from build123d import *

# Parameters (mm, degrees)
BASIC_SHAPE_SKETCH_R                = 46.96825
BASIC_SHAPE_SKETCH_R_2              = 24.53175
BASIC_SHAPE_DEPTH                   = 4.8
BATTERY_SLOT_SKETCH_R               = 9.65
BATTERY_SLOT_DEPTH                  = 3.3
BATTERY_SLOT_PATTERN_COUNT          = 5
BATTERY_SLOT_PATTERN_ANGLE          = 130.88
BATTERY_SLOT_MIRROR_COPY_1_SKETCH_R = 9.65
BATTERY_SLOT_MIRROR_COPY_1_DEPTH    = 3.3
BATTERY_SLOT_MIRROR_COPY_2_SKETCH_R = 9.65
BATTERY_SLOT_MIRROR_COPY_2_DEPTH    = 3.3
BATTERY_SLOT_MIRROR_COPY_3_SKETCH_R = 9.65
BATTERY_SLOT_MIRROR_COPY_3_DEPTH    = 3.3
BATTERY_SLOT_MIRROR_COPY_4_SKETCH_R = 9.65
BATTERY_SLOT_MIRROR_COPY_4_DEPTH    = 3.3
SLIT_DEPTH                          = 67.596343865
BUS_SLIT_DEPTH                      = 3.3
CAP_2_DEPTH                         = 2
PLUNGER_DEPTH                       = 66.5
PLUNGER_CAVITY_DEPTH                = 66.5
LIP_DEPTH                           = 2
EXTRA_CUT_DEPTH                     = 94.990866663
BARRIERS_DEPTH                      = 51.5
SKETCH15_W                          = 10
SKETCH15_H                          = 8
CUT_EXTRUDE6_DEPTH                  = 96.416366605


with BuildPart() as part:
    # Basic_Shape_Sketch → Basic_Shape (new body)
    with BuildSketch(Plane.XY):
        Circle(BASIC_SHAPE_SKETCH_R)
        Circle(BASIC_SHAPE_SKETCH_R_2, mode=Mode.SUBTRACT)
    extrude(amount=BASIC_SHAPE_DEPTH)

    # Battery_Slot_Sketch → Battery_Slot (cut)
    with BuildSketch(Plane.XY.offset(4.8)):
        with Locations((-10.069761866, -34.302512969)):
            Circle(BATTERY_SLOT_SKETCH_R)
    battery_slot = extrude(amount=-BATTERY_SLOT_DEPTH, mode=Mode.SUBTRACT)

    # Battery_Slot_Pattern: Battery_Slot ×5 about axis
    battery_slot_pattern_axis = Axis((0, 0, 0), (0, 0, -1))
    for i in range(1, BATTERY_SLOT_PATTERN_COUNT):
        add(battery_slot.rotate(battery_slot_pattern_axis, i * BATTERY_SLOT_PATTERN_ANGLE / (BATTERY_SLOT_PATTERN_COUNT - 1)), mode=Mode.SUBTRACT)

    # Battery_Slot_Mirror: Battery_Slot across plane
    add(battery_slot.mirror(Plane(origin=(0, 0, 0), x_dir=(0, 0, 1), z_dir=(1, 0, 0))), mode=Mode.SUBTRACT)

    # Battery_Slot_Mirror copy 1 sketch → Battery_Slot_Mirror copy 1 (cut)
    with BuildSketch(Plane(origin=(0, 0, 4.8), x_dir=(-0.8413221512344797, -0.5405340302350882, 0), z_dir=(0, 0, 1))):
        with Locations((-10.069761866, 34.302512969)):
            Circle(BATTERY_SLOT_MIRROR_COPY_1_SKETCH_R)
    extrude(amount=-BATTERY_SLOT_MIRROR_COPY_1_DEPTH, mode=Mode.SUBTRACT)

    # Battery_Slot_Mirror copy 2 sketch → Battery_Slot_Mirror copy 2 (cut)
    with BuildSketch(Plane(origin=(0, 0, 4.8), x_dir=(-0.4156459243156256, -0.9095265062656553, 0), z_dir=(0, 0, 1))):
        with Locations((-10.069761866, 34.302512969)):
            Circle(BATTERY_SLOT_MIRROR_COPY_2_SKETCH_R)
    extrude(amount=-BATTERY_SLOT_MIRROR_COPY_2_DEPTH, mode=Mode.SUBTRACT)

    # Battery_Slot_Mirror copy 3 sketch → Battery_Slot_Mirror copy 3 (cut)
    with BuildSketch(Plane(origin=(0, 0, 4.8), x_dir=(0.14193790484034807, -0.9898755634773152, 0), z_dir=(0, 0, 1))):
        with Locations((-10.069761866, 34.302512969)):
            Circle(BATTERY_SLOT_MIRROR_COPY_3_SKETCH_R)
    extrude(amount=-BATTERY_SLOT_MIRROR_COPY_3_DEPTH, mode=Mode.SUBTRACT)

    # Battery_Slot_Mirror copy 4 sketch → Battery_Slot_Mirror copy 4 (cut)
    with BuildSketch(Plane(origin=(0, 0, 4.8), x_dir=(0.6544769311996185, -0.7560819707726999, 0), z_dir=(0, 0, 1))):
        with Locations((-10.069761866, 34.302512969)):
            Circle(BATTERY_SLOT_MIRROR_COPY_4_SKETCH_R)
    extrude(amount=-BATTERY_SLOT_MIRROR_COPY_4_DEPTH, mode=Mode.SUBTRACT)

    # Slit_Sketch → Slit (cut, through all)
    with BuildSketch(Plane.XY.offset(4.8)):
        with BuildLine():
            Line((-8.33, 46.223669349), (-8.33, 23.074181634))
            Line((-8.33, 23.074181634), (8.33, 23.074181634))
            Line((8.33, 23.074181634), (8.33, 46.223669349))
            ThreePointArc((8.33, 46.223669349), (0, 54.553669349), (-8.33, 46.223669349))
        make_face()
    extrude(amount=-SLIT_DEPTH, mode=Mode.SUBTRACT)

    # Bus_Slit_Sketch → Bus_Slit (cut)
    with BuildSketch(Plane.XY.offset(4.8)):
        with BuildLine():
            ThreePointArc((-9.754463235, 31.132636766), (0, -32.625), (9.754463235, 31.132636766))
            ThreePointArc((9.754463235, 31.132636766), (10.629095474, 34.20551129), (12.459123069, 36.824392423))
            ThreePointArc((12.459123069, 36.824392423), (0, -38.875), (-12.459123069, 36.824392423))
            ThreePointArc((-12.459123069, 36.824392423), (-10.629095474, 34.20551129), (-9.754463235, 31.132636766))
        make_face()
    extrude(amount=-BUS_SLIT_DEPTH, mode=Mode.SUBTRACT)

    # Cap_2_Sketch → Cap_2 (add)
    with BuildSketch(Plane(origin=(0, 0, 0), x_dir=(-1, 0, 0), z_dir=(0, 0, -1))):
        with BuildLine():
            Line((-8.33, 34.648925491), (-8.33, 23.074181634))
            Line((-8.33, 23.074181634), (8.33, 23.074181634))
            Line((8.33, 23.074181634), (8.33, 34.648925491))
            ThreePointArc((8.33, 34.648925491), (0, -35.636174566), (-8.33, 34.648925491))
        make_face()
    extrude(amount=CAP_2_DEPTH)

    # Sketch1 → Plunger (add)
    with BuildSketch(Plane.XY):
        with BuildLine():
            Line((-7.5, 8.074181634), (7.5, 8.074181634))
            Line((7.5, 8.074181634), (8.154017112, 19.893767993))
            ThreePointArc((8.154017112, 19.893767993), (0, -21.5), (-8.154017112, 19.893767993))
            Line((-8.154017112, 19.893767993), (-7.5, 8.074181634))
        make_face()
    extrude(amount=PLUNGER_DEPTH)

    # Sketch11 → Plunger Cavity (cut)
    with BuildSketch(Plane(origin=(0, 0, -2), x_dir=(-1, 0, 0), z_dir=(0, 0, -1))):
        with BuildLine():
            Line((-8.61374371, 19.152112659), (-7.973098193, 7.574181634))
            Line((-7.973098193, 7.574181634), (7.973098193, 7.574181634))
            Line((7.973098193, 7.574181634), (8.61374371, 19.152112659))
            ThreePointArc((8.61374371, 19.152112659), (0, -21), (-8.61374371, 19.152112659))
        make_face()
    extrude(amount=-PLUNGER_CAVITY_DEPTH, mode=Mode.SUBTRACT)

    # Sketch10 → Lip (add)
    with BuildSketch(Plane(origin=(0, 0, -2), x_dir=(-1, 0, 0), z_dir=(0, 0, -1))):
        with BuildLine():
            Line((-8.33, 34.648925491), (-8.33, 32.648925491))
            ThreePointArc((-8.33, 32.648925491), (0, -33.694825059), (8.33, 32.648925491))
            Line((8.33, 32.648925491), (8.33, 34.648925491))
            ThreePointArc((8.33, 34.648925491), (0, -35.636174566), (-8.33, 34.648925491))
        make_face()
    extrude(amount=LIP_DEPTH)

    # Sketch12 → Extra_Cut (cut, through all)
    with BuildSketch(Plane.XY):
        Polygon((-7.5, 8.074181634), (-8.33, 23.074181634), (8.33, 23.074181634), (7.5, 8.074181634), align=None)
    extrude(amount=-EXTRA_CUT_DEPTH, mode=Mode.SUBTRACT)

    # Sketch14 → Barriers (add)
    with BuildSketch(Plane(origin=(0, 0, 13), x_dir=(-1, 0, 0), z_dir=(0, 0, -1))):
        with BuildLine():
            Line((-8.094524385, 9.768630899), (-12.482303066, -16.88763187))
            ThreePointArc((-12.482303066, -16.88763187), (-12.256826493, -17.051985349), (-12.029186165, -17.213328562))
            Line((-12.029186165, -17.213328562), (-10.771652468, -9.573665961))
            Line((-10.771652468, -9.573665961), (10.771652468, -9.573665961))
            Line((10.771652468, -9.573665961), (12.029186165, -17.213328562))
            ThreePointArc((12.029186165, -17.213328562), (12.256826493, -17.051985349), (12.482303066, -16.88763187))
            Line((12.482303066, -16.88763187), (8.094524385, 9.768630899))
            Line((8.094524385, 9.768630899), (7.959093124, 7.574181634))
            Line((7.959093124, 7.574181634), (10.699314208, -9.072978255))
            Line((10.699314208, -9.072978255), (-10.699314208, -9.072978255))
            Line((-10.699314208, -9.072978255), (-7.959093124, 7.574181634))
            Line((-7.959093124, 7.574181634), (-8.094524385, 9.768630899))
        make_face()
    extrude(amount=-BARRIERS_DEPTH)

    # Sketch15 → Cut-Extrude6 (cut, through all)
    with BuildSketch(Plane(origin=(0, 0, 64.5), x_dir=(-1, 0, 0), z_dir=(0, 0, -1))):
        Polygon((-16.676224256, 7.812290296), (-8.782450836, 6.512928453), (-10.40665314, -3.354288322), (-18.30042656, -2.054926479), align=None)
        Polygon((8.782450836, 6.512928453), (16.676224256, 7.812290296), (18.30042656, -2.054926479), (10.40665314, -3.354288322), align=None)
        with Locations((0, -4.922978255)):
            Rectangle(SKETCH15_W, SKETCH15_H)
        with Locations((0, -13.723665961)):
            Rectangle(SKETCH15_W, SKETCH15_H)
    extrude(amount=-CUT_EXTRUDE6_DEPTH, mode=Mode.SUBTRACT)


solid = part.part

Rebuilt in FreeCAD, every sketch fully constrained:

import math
import FreeCAD as App
import Part
import Sketcher
from FreeCAD import Vector
Q = App.Units.Quantity

doc = App.newDocument("Part")
body = doc.addObject("PartDesign::Body", "Body")

# Sketch on XY plane
sketch1 = body.newObject("Sketcher::SketchObject", "Sketch")
sketch1.AttachmentSupport = (doc.getObject("XY_Plane"), [""])
sketch1.MapMode = "FlatFace"
sketch1.addGeometry([
    Part.Circle(Vector(0, 0, 0), Vector(0, 0, 1), 47),
    Part.Circle(Vector(0, 0, 0), Vector(0, 0, 1), 25),
], False)
sketch1.addConstraint([
    Sketcher.Constraint("Coincident", 0, 3, -1, 1),
    Sketcher.Constraint("Coincident", 1, 3, -1, 1),
    Sketcher.Constraint("Diameter", 0, Q("93.9365 mm")),
    Sketcher.Constraint("Diameter", 1, Q("49.0635 mm")),
])
pad1 = body.newObject("PartDesign::Pad", "Pad")
pad1.Profile = sketch1
pad1.Length = 4.8

# Sketch on XY plane
sketch2 = body.newObject("Sketcher::SketchObject", "Sketch001")
sketch2.AttachmentSupport = (doc.getObject("XY_Plane"), [""])
sketch2.MapMode = "FlatFace"
sketch2.AttachmentOffset = App.Placement(Vector(0, 0, 4.8), App.Rotation())
sketch2.addGeometry(Part.Circle(Vector(-10, -34, 0), Vector(0, 0, 1), 10), False)
sketch2.addConstraint([
    Sketcher.Constraint("Diameter", 0, Q("19.3 mm")),
    Sketcher.Constraint("DistanceX", 0, 3, -1, 1, Q("10.069762 mm")),
    Sketcher.Constraint("DistanceY", 0, 3, -1, 1, Q("34.302513 mm")),
])
pocket1 = body.newObject("PartDesign::Pocket", "Pocket")
pocket1.Profile = sketch2
pocket1.Length = 3.3
doc.recompute()

polarpattern = body.newObject("PartDesign::PolarPattern", "PolarPattern")
polarpattern.Originals = [pocket1]
polarpattern.Axis = (doc.getObject("Z_Axis"), [""])
polarpattern.Angle = 130.88
polarpattern.Occurrences = 5
polarpattern.Reversed = True
body.Tip = polarpattern
doc.recompute()

mirrored = body.newObject("PartDesign::Mirrored", "Mirrored")
mirrored.Originals = [pocket1]
mirrored.MirrorPlane = (doc.getObject("YZ_Plane"), [""])
body.Tip = mirrored

# Sketch on XY plane
sketch3 = body.newObject("Sketcher::SketchObject", "Sketch002")
sketch3.AttachmentSupport = (doc.getObject("XY_Plane"), [""])
sketch3.MapMode = "FlatFace"
sketch3.AttachmentOffset = App.Placement(Vector(0, 0, 4.8), App.Rotation())
sketch3.addGeometry(Part.Circle(Vector(27, -23, 0), Vector(0, 0, 1), 10), False)
sketch3.addConstraint([
    Sketcher.Constraint("Diameter", 0, Q("19.3 mm")),
    Sketcher.Constraint("DistanceX", -1, 1, 0, 3, Q("27.013589 mm")),
    Sketcher.Constraint("DistanceY", 0, 3, -1, 1, Q("23.416415 mm")),
])
pocket2 = body.newObject("PartDesign::Pocket", "Pocket001")
pocket2.Profile = sketch3
pocket2.Length = 3.3

# Sketch on XY plane
sketch4 = body.newObject("Sketcher::SketchObject", "Sketch003")
sketch4.AttachmentSupport = (doc.getObject("XY_Plane"), [""])
sketch4.MapMode = "FlatFace"
sketch4.AttachmentOffset = App.Placement(Vector(0, 0, 4.8), App.Rotation())
sketch4.addGeometry(Part.Circle(Vector(35, -5, 0), Vector(0, 0, 1), 10), False)
sketch4.addConstraint([
    Sketcher.Constraint("Diameter", 0, Q("19.3 mm")),
    Sketcher.Constraint("DistanceX", -1, 1, 0, 3, Q("35.3845 mm")),
    Sketcher.Constraint("DistanceY", 0, 3, -1, 1, Q("5.098984 mm")),
])
pocket3 = body.newObject("PartDesign::Pocket", "Pocket002")
pocket3.Profile = sketch4
pocket3.Length = 3.3

# Sketch on XY plane
sketch5 = body.newObject("Sketcher::SketchObject", "Sketch004")
sketch5.AttachmentSupport = (doc.getObject("XY_Plane"), [""])
sketch5.MapMode = "FlatFace"
sketch5.AttachmentOffset = App.Placement(Vector(0, 0, 4.8), App.Rotation())
sketch5.addGeometry(Part.Circle(Vector(33, 15, 0), Vector(0, 0, 1), 10), False)
sketch5.addConstraint([
    Sketcher.Constraint("Diameter", 0, Q("19.3 mm")),
    Sketcher.Constraint("DistanceX", -1, 1, 0, 3, Q("32.525938 mm")),
    Sketcher.Constraint("DistanceY", -1, 1, 0, 3, Q("14.836638 mm")),
])
pocket4 = body.newObject("PartDesign::Pocket", "Pocket003")
pocket4.Profile = sketch5
pocket4.Length = 3.3

# Sketch on XY plane
sketch6 = body.newObject("Sketcher::SketchObject", "Sketch005")
sketch6.AttachmentSupport = (doc.getObject("XY_Plane"), [""])
sketch6.MapMode = "FlatFace"
sketch6.AttachmentOffset = App.Placement(Vector(0, 0, 4.8), App.Rotation())
sketch6.addGeometry(Part.Circle(Vector(19, 30, 0), Vector(0, 0, 1), 10), False)
sketch6.addConstraint([
    Sketcher.Constraint("Diameter", 0, Q("19.3 mm")),
    Sketcher.Constraint("DistanceY", -1, 1, 0, 3, Q("30.063769 mm")),
    Sketcher.Constraint("DistanceX", -1, 1, 0, 3, Q("19.345085 mm")),
])
pocket5 = body.newObject("PartDesign::Pocket", "Pocket004")
pocket5.Profile = sketch6
pocket5.Length = 3.3

# Sketch on XY plane
sketch7 = body.newObject("Sketcher::SketchObject", "Sketch006")
sketch7.AttachmentSupport = (doc.getObject("XY_Plane"), [""])
sketch7.MapMode = "FlatFace"
sketch7.AttachmentOffset = App.Placement(Vector(0, 0, 4.8), App.Rotation())
sketch7.addGeometry([
    Part.LineSegment(Vector(-8, 46, 0), Vector(-8, 23, 0)),
    Part.LineSegment(Vector(-8, 23, 0), Vector(8, 23, 0)),
    Part.LineSegment(Vector(8, 23, 0), Vector(8, 46, 0)),
    Part.ArcOfCircle(Part.Circle(Vector(0, 46, 0), Vector(0, 0, 1), 8), math.radians(0), math.radians(180)),
], False)
sketch7.addConstraint([
    Sketcher.Constraint("Coincident", 0, 2, 1, 1),
    Sketcher.Constraint("Coincident", 1, 2, 2, 1),
    Sketcher.Constraint("Tangent", 2, 2, 3, 1),
    Sketcher.Constraint("Tangent", 3, 2, 0, 1),
    Sketcher.Constraint("Vertical", 0),
    Sketcher.Constraint("Horizontal", 1),
    Sketcher.Constraint("Vertical", 2),
    Sketcher.Constraint("PointOnObject", 3, 3, -2),
    Sketcher.Constraint("Radius", 3, Q("8.33 mm")),
    Sketcher.Constraint("DistanceY", 0, 2, 0, 1, Q("23.149488 mm")),
    Sketcher.Constraint("DistanceY", -1, 1, 3, 3, Q("46.223669 mm")),
])
pocket6 = body.newObject("PartDesign::Pocket", "Pocket005")
pocket6.Profile = sketch7
pocket6.Type = "ThroughAll"

# Sketch on XY plane
sketch8 = body.newObject("Sketcher::SketchObject", "Sketch007")
sketch8.AttachmentSupport = (doc.getObject("XY_Plane"), [""])
sketch8.MapMode = "FlatFace"
sketch8.AttachmentOffset = App.Placement(Vector(0, 0, 4.8), App.Rotation())
sketch8.addGeometry([
    Part.ArcOfCircle(Part.Circle(Vector(0, 0, 0), Vector(0, 0, 1), 33), math.radians(107), math.radians(433)),
    Part.ArcOfCircle(Part.Circle(Vector(-19, 30, 0), Vector(0, 0, 1), 10), math.radians(6), math.radians(44)),
    Part.ArcOfCircle(Part.Circle(Vector(0, 0, 0), Vector(0, 0, 1), 39), math.radians(109), math.radians(431)),
    Part.ArcOfCircle(Part.Circle(Vector(19, 30, 0), Vector(0, 0, 1), 10), math.radians(136), math.radians(174)),
], False)
sketch8.addConstraint([
    Sketcher.Constraint("Coincident", 0, 1, 1, 1),
    Sketcher.Constraint("Coincident", 1, 2, 2, 1),
    Sketcher.Constraint("Coincident", 2, 2, 3, 1),
    Sketcher.Constraint("Coincident", 3, 2, 0, 2),
    Sketcher.Constraint("Coincident", 0, 3, -1, 1),
    Sketcher.Constraint("Coincident", 2, 3, -1, 1),
    Sketcher.Constraint("Equal", 1, 3),
    Sketcher.Constraint("Symmetric", 1, 3, 3, 3, -2),
    Sketcher.Constraint("Radius", 1, Q("9.65 mm")),
    Sketcher.Constraint("Radius", 0, Q("32.625 mm")),
    Sketcher.Constraint("Radius", 2, Q("38.875 mm")),
    Sketcher.Constraint("DistanceY", -1, 1, 1, 3, Q("30.063769 mm")),
    Sketcher.Constraint("DistanceX", 1, 3, 3, 3, Q("38.69017 mm")),
])
pocket7 = body.newObject("PartDesign::Pocket", "Pocket006")
pocket7.Profile = sketch8
pocket7.Length = 3.3

# Sketch on XY plane
sketch9 = body.newObject("Sketcher::SketchObject", "Sketch008")
sketch9.AttachmentSupport = (doc.getObject("XY_Plane"), [""])
sketch9.MapMode = "FlatFace"
sketch9.addGeometry([
    Part.LineSegment(Vector(8, 23, 0), Vector(8, 35, 0)),
    Part.ArcOfCircle(Part.Circle(Vector(0, 0, 0), Vector(0, 0, 1), 36), math.radians(104), math.radians(436)),
    Part.LineSegment(Vector(-8, 35, 0), Vector(-8, 23, 0)),
    Part.LineSegment(Vector(-8, 23, 0), Vector(8, 23, 0)),
], False)
sketch9.addConstraint([
    Sketcher.Constraint("Coincident", 0, 2, 1, 2),
    Sketcher.Constraint("Coincident", 1, 1, 2, 1),
    Sketcher.Constraint("Coincident", 2, 2, 3, 1),
    Sketcher.Constraint("Coincident", 3, 2, 0, 1),
    Sketcher.Constraint("Vertical", 0),
    Sketcher.Constraint("Vertical", 2),
    Sketcher.Constraint("Horizontal", 3),
    Sketcher.Constraint("Coincident", 1, 3, -1, 1),
    Sketcher.Constraint("Horizontal", 0, 2, 1, 1),
    Sketcher.Constraint("DistanceX", 3, 1, 3, 2, Q("16.66 mm")),
    Sketcher.Constraint("Radius", 1, Q("35.636175 mm")),
    Sketcher.Constraint("DistanceY", 0, 1, 0, 2, Q("11.574744 mm")),
])
pad2 = body.newObject("PartDesign::Pad", "Pad001")
pad2.Profile = sketch9
pad2.Length = 2
pad2.Reversed = True

# Sketch on XY plane
sketch10 = body.newObject("Sketcher::SketchObject", "Sketch009")
sketch10.AttachmentSupport = (doc.getObject("XY_Plane"), [""])
sketch10.MapMode = "FlatFace"
sketch10.addGeometry([
    Part.LineSegment(Vector(8, 8, 0), Vector(-8, 8, 0)),
    Part.LineSegment(Vector(-8, 8, 0), Vector(-8, 20, 0)),
    Part.ArcOfCircle(Part.Circle(Vector(0, 0, 0), Vector(0, 0, 1), 22), math.radians(112), math.radians(428)),
    Part.LineSegment(Vector(8, 20, 0), Vector(8, 8, 0)),
], False)
sketch10.addConstraint([
    Sketcher.Constraint("Coincident", 0, 2, 1, 1),
    Sketcher.Constraint("Coincident", 1, 2, 2, 1),
    Sketcher.Constraint("Coincident", 2, 2, 3, 1),
    Sketcher.Constraint("Coincident", 3, 2, 0, 1),
    Sketcher.Constraint("Horizontal", 0),
    Sketcher.Constraint("Coincident", 2, 3, -1, 1),
    Sketcher.Constraint("Horizontal", 1, 2, 2, 2),
    Sketcher.Constraint("Equal", 1, 3),
    Sketcher.Constraint("Radius", 2, Q("21.5 mm")),
    Sketcher.Constraint("DistanceX", 0, 2, 0, 1, Q("15 mm")),
    Sketcher.Constraint("DistanceY", -1, 1, 0, 2, Q("8.074182 mm")),
    Sketcher.Constraint("Distance", 1, Q("11.837667 mm")),
])
pad3 = body.newObject("PartDesign::Pad", "Pad002")
pad3.Profile = sketch10
pad3.Length = 66.5

# Sketch on XY plane
sketch11 = body.newObject("Sketcher::SketchObject", "Sketch010")
sketch11.AttachmentSupport = (doc.getObject("XY_Plane"), [""])
sketch11.MapMode = "FlatFace"
sketch11.AttachmentOffset = App.Placement(Vector(0, 0, -2), App.Rotation())
sketch11.addGeometry([
    Part.LineSegment(Vector(8, 8, 0), Vector(9, 19, 0)),
    Part.ArcOfCircle(Part.Circle(Vector(0, 0, 0), Vector(0, 0, 1), 21), math.radians(114), math.radians(426)),
    Part.LineSegment(Vector(-9, 19, 0), Vector(-8, 8, 0)),
    Part.LineSegment(Vector(-8, 8, 0), Vector(8, 8, 0)),
], False)
sketch11.addConstraint([
    Sketcher.Constraint("Coincident", 0, 2, 1, 2),
    Sketcher.Constraint("Coincident", 1, 1, 2, 1),
    Sketcher.Constraint("Coincident", 2, 2, 3, 1),
    Sketcher.Constraint("Coincident", 3, 2, 0, 1),
    Sketcher.Constraint("Horizontal", 3),
    Sketcher.Constraint("Coincident", 1, 3, -1, 1),
    Sketcher.Constraint("Horizontal", 0, 2, 1, 1),
    Sketcher.Constraint("Equal", 0, 2),
    Sketcher.Constraint("Radius", 1, Q("21 mm")),
    Sketcher.Constraint("DistanceX", 2, 2, -1, 1, Q("7.973098 mm")),
    Sketcher.Constraint("DistanceY", -1, 1, 2, 2, Q("7.574182 mm")),
    Sketcher.Constraint("DistanceY", 2, 2, 1, 1, Q("11.577931 mm")),
])
pocket8 = body.newObject("PartDesign::Pocket", "Pocket007")
pocket8.Profile = sketch11
pocket8.Length = 66.5
pocket8.Reversed = True

# Sketch on XY plane
sketch12 = body.newObject("Sketcher::SketchObject", "Sketch011")
sketch12.AttachmentSupport = (doc.getObject("XY_Plane"), [""])
sketch12.MapMode = "FlatFace"
sketch12.AttachmentOffset = App.Placement(Vector(0, 0, -2), App.Rotation())
sketch12.addGeometry([
    Part.LineSegment(Vector(8.3, 32.6, 0), Vector(8.3, 34.6, 0)),
    Part.ArcOfCircle(Part.Circle(Vector(0, 0, 0), Vector(0, 0, 1), 35.6), math.radians(104), math.radians(436)),
    Part.LineSegment(Vector(-8.3, 34.6, 0), Vector(-8.3, 32.6, 0)),
    Part.ArcOfCircle(Part.Circle(Vector(0, 0, 0), Vector(0, 0, 1), 33.7), math.radians(104), math.radians(436)),
], False)
sketch12.addConstraint([
    Sketcher.Constraint("Coincident", 0, 2, 1, 2),
    Sketcher.Constraint("Coincident", 1, 1, 2, 1),
    Sketcher.Constraint("Coincident", 2, 2, 3, 1),
    Sketcher.Constraint("Coincident", 3, 2, 0, 1),
    Sketcher.Constraint("Vertical", 0),
    Sketcher.Constraint("Vertical", 2),
    Sketcher.Constraint("Coincident", 1, 3, -1, 1),
    Sketcher.Constraint("Coincident", 3, 3, -1, 1),
    Sketcher.Constraint("Horizontal", 0, 2, 1, 1),
    Sketcher.Constraint("DistanceY", 0, 1, 0, 2, Q("2 mm")),
    Sketcher.Constraint("DistanceX", -1, 1, 0, 2, Q("8.33 mm")),
    Sketcher.Constraint("Radius", 1, Q("35.636175 mm")),
])
pad4 = body.newObject("PartDesign::Pad", "Pad003")
pad4.Profile = sketch12
pad4.Length = 2
pad4.Reversed = True

# Sketch on XY plane
sketch13 = body.newObject("Sketcher::SketchObject", "Sketch012")
sketch13.AttachmentSupport = (doc.getObject("XY_Plane"), [""])
sketch13.MapMode = "FlatFace"
sketch13.addGeometry([
    Part.LineSegment(Vector(-8.33, 23.074182, 0), Vector(-7.5, 8.074182, 0)),
    Part.LineSegment(Vector(-7.5, 8.074182, 0), Vector(7.5, 8.074182, 0)),
    Part.LineSegment(Vector(7.5, 8.074182, 0), Vector(8.33, 23.074182, 0)),
    Part.LineSegment(Vector(8.33, 23.074182, 0), Vector(-8.33, 23.074182, 0)),
], False)
sketch13.addConstraint([
    Sketcher.Constraint("Coincident", 0, 2, 1, 1),
    Sketcher.Constraint("Coincident", 1, 2, 2, 1),
    Sketcher.Constraint("Coincident", 2, 2, 3, 1),
    Sketcher.Constraint("Coincident", 3, 2, 0, 1),
    Sketcher.Constraint("Horizontal", 1),
    Sketcher.Constraint("Horizontal", 3),
    Sketcher.Constraint("Equal", 0, 2),
    Sketcher.Constraint("DistanceX", 1, 1, 1, 2, Q("15 mm")),
    Sketcher.Constraint("DistanceY", 1, 2, 2, 2, Q("15 mm")),
    Sketcher.Constraint("DistanceX", 3, 2, 3, 1, Q("16.66 mm")),
    Sketcher.Constraint("DistanceX", 0, 2, -1, 1, Q("7.5 mm")),
    Sketcher.Constraint("DistanceY", -1, 1, 0, 2, Q("8.074182 mm")),
])
pocket9 = body.newObject("PartDesign::Pocket", "Pocket008")
pocket9.Profile = sketch13
pocket9.Type = "ThroughAll"

# Sketch on XY plane
sketch14 = body.newObject("Sketcher::SketchObject", "Sketch013")
sketch14.AttachmentSupport = (doc.getObject("XY_Plane"), [""])
sketch14.MapMode = "FlatFace"
sketch14.AttachmentOffset = App.Placement(Vector(0, 0, 13), App.Rotation())
sketch14.addGeometry([
    Part.LineSegment(Vector(8.094524, 9.768631, 0), Vector(12.482303, -16.887632, 0)),  # 0
    Part.ArcOfCircle(Part.Circle(Vector(0.000005, -0.000007, 0), Vector(0, 0, 1), 20.999992), math.radians(-55.053005), math.radians(-53.530457)),  # 1
    Part.LineSegment(Vector(12.029186, -17.213329, 0), Vector(10.771652, -9.573666, 0)),  # 2
    Part.LineSegment(Vector(10.771652, -9.573666, 0), Vector(-10.771652, -9.573666, 0)),  # 3
    Part.LineSegment(Vector(-10.771652, -9.573666, 0), Vector(-12.029186, -17.213329, 0)),  # 4
    Part.ArcOfCircle(Part.Circle(Vector(-0.000005, -0.000007, 0), Vector(0, 0, 1), 20.999992), math.radians(-126.469543), math.radians(-124.946995)),  # 5
    Part.LineSegment(Vector(-12.482303, -16.887632, 0), Vector(-8.094524, 9.768631, 0)),  # 6
    Part.LineSegment(Vector(-8.094524, 9.768631, 0), Vector(-7.959093, 7.574182, 0)),  # 7
    Part.LineSegment(Vector(-7.959093, 7.574182, 0), Vector(-10.699314, -9.072978, 0)),  # 8
    Part.LineSegment(Vector(-10.699314, -9.072978, 0), Vector(10.699314, -9.072978, 0)),  # 9
    Part.LineSegment(Vector(10.699314, -9.072978, 0), Vector(7.959093, 7.574182, 0)),  # 10
    Part.LineSegment(Vector(7.959093, 7.574182, 0), Vector(8.094524, 9.768631, 0)),  # 11
], False)
sketch14.addConstraint([
    Sketcher.Constraint("Coincident", 0, 2, 1, 2),
    Sketcher.Constraint("Coincident", 1, 1, 2, 1),
    Sketcher.Constraint("Coincident", 2, 2, 3, 1),
    Sketcher.Constraint("Coincident", 3, 2, 4, 1),
    Sketcher.Constraint("Coincident", 4, 2, 5, 2),
    Sketcher.Constraint("Coincident", 5, 1, 6, 1),
    Sketcher.Constraint("Coincident", 6, 2, 7, 1),
    Sketcher.Constraint("Coincident", 7, 2, 8, 1),
    Sketcher.Constraint("Coincident", 8, 2, 9, 1),
    Sketcher.Constraint("Coincident", 9, 2, 10, 1),
    Sketcher.Constraint("Coincident", 10, 2, 11, 1),
    Sketcher.Constraint("Coincident", 11, 2, 0, 1),
    Sketcher.Constraint("Horizontal", 3),
    Sketcher.Constraint("Horizontal", 9),
    Sketcher.Constraint("Coincident", 1, 3, -1, 1),
    Sketcher.Constraint("Coincident", 5, 3, -1, 1),
    Sketcher.Constraint("Radius", 1, Q("20.999992 mm")),
    Sketcher.Constraint("Radius", 5, Q("20.999992 mm")),
    Sketcher.Constraint("DistanceX", 9, 1, 9, 2, Q("21.398628 mm")),
    Sketcher.Constraint("DistanceX", 1, 3, 0, 2, Q("12.482298 mm")),
    Sketcher.Constraint("DistanceX", 5, 1, 5, 3, Q("12.482298 mm")),
    Sketcher.Constraint("Distance", 2, Q("7.74247 mm")),
    Sketcher.Constraint("Distance", 4, Q("7.74247 mm")),
    Sketcher.Constraint("Distance", 8, Q("16.871181 mm")),
    Sketcher.Constraint("Distance", 10, Q("16.871181 mm")),
    Sketcher.Constraint("DistanceX", 3, 2, 3, 1, Q("21.543305 mm")),
    Sketcher.Constraint("DistanceY", 1, 1, -1, 1, Q("17.213329 mm")),
    Sketcher.Constraint("DistanceY", 4, 2, -1, 1, Q("17.213329 mm")),
    Sketcher.Constraint("DistanceY", -1, 1, 6, 2, Q("9.768631 mm")),
    Sketcher.Constraint("DistanceY", -1, 1, 7, 2, Q("7.574182 mm")),
    Sketcher.Constraint("DistanceY", 8, 2, -1, 1, Q("9.072978 mm")),
    Sketcher.Constraint("DistanceY", -1, 1, 10, 2, Q("7.574182 mm")),
    Sketcher.Constraint("DistanceY", -1, 1, 11, 2, Q("9.768631 mm")),
    Sketcher.Constraint("DistanceX", 6, 2, 5, 3, Q("8.09452 mm")),
    Sketcher.Constraint("DistanceX", 6, 2, 7, 2, Q("0.135431 mm")),
    Sketcher.Constraint("DistanceX", 10, 2, 11, 2, Q("0.135431 mm")),
])
pad5 = body.newObject("PartDesign::Pad", "Pad004")
pad5.Profile = sketch14
pad5.Length = 51.5

# Sketch on XY plane
sketch15 = body.newObject("Sketcher::SketchObject", "Sketch014")
sketch15.AttachmentSupport = (doc.getObject("XY_Plane"), [""])
sketch15.MapMode = "FlatFace"
sketch15.AttachmentOffset = App.Placement(Vector(0, 0, 64.5), App.Rotation())
sketch15.addGeometry([
    Part.LineSegment(Vector(9, 7, 0), Vector(17, 8, 0)),  # 0
    Part.LineSegment(Vector(17, 8, 0), Vector(18, -2, 0)),  # 1
    Part.LineSegment(Vector(18, -2, 0), Vector(10, -3, 0)),  # 2
    Part.LineSegment(Vector(10, -3, 0), Vector(9, 7, 0)),  # 3
    Part.LineSegment(Vector(-17, 8, 0), Vector(-9, 7, 0)),  # 4
    Part.LineSegment(Vector(-9, 7, 0), Vector(-10, -3, 0)),  # 5
    Part.LineSegment(Vector(-10, -3, 0), Vector(-18, -2, 0)),  # 6
    Part.LineSegment(Vector(-18, -2, 0), Vector(-17, 8, 0)),  # 7
    Part.LineSegment(Vector(5, -1, 0), Vector(5, -9, 0)),  # 8
    Part.LineSegment(Vector(5, -9, 0), Vector(-5, -9, 0)),  # 9
    Part.LineSegment(Vector(-5, -9, 0), Vector(-5, -1, 0)),  # 10
    Part.LineSegment(Vector(-5, -1, 0), Vector(5, -1, 0)),  # 11
    Part.LineSegment(Vector(5, -10, 0), Vector(5, -18, 0)),  # 12
    Part.LineSegment(Vector(5, -18, 0), Vector(-5, -18, 0)),  # 13
    Part.LineSegment(Vector(-5, -18, 0), Vector(-5, -10, 0)),  # 14
    Part.LineSegment(Vector(-5, -10, 0), Vector(5, -10, 0)),  # 15
], False)
sketch15.addConstraint([
    Sketcher.Constraint("Coincident", 0, 2, 1, 1),
    Sketcher.Constraint("Coincident", 1, 2, 2, 1),
    Sketcher.Constraint("Coincident", 2, 2, 3, 1),
    Sketcher.Constraint("Coincident", 3, 2, 0, 1),
    Sketcher.Constraint("Coincident", 4, 2, 5, 1),
    Sketcher.Constraint("Coincident", 5, 2, 6, 1),
    Sketcher.Constraint("Coincident", 6, 2, 7, 1),
    Sketcher.Constraint("Coincident", 7, 2, 4, 1),
    Sketcher.Constraint("Coincident", 8, 2, 9, 1),
    Sketcher.Constraint("Coincident", 9, 2, 10, 1),
    Sketcher.Constraint("Coincident", 10, 2, 11, 1),
    Sketcher.Constraint("Coincident", 11, 2, 8, 1),
    Sketcher.Constraint("Coincident", 12, 2, 13, 1),
    Sketcher.Constraint("Coincident", 13, 2, 14, 1),
    Sketcher.Constraint("Coincident", 14, 2, 15, 1),
    Sketcher.Constraint("Coincident", 15, 2, 12, 1),
    Sketcher.Constraint("Vertical", 8),
    Sketcher.Constraint("Horizontal", 9),
    Sketcher.Constraint("Vertical", 10),
    Sketcher.Constraint("Horizontal", 11),
    Sketcher.Constraint("Vertical", 12),
    Sketcher.Constraint("Horizontal", 13),
    Sketcher.Constraint("Vertical", 14),
    Sketcher.Constraint("Horizontal", 15),
    Sketcher.Constraint("Symmetric", 3, 2, 4, 2, -2),
    Sketcher.Constraint("Symmetric", 2, 2, 5, 2, -2),
    Sketcher.Constraint("Symmetric", 1, 2, 6, 2, -2),
    Sketcher.Constraint("Symmetric", 0, 2, 7, 2, -2),
    Sketcher.Constraint("Perpendicular", 0, 1),
    Sketcher.Constraint("Perpendicular", 1, 2),
    Sketcher.Constraint("Perpendicular", 2, 3),
    Sketcher.Constraint("Vertical", 11, 2, 12, 2),
    Sketcher.Constraint("Vertical", 10, 2, 13, 2),
    Sketcher.Constraint("Equal", 10, 12),
    Sketcher.Constraint("DistanceX", 9, 2, 9, 1, Q("10 mm")),
    Sketcher.Constraint("DistanceY", 8, 2, 8, 1, Q("8 mm")),
    Sketcher.Constraint("Distance", 0, Q("8 mm")),
    Sketcher.Constraint("Distance", 1, Q("10 mm")),
    Sketcher.Constraint("DistanceX", -1, 1, 8, 2, Q("5 mm")),
    Sketcher.Constraint("DistanceX", 4, 2, 3, 2, Q("17.564902 mm")),
    Sketcher.Constraint("DistanceY", -1, 1, 0, 2, Q("7.81229 mm")),
    Sketcher.Constraint("DistanceY", 2, 2, -1, 1, Q("3.354288 mm")),
    Sketcher.Constraint("DistanceY", 8, 2, -1, 1, Q("8.922978 mm")),
    Sketcher.Constraint("DistanceY", 12, 2, -1, 1, Q("17.723666 mm")),
])
pocket10 = body.newObject("PartDesign::Pocket", "Pocket009")
pocket10.Profile = sketch15
pocket10.Type = "ThroughAll"
pocket10.Reversed = True

doc.recompute()
